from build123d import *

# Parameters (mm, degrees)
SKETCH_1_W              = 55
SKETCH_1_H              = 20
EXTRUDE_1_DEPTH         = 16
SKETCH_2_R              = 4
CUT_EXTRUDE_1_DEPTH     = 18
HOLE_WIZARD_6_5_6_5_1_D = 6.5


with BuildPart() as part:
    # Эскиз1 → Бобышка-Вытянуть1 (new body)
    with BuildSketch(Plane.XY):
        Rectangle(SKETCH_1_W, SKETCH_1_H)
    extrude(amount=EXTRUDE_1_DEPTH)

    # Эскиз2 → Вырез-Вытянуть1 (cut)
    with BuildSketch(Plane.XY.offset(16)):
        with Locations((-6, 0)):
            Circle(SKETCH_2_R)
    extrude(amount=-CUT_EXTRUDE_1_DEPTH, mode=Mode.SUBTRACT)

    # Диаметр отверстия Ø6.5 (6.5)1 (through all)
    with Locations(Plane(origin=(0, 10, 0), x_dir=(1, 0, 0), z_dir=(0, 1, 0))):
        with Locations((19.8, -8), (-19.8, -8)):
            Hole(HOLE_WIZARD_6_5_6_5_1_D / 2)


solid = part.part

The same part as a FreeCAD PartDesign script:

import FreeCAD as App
import Part
import Sketcher

doc = App.newDocument("Part")
params = doc.addObject("Spreadsheet::Sheet", "Params")
for row, (alias, value) in enumerate([
    ("sketch1_width", "55 mm"),
    ("sketch1_height", "20 mm"),
    ("pad1_length", "16 mm"),
    ("sketch2_diameter", "8 mm"),
    ("pocket1_length", "18 mm"),
    ("sketch3_diameter", "6.5 mm"),
    ("hole_diameter", "6.5 mm"),
], start=1):
    params.set(f"A{row}", alias)
    params.set(f"B{row}", "=" + value)
    params.setAlias(f"B{row}", alias)

body = doc.addObject("PartDesign::Body", "Body")

sketch1 = body.newObject("Sketcher::SketchObject", "Sketch")
sketch1.AttachmentSupport = (doc.getObject("XY_Plane"), [""])
sketch1.MapMode = "FlatFace"
sketch1.addGeometry([
    Part.LineSegment(App.Vector(-27.5, 10, 0), App.Vector(-27.5, -10, 0)),
    Part.LineSegment(App.Vector(-27.5, -10, 0), App.Vector(27.5, -10, 0)),
    Part.LineSegment(App.Vector(27.5, -10, 0), App.Vector(27.5, 10, 0)),
    Part.LineSegment(App.Vector(27.5, 10, 0), App.Vector(-27.5, 10, 0)),
], False)
sketch1.addConstraint([
    Sketcher.Constraint("Coincident", 0, 2, 1, 1),
    Sketcher.Constraint("Coincident", 1, 2, 2, 1),
    Sketcher.Constraint("Coincident", 2, 2, 3, 1),
    Sketcher.Constraint("Coincident", 3, 2, 0, 1),
    Sketcher.Constraint("Vertical", 0),
    Sketcher.Constraint("Horizontal", 1),
    Sketcher.Constraint("Vertical", 2),
    Sketcher.Constraint("Horizontal", 3),
    Sketcher.Constraint("Symmetric", 0, 2, 2, 2, -1, 1),
    Sketcher.Constraint("DistanceX", 1, 1, 1, 2, 55.0),
    Sketcher.Constraint("DistanceY", 0, 2, 0, 1, 20.0),
])
sketch1.setExpression("Constraints[9]", "Params.sketch1_width")
sketch1.setExpression("Constraints[10]", "Params.sketch1_height")
pad1 = body.newObject("PartDesign::Pad", "Pad")
pad1.Profile = sketch1
pad1.setExpression("Length", "Params.pad1_length")

sketch2 = body.newObject("Sketcher::SketchObject", "Sketch001")
sketch2.AttachmentSupport = (doc.getObject("XY_Plane"), [""])
sketch2.MapMode = "FlatFace"
sketch2.AttachmentOffset = App.Placement(App.Vector(0, 0, 16), App.Rotation())
sketch2.addGeometry(Part.Circle(App.Vector(-6, 0, 0), App.Vector(0, 0, 1), 4), False)
sketch2.addConstraint([
    Sketcher.Constraint("PointOnObject", 0, 3, -1),
    Sketcher.Constraint("Diameter", 0, 8.0),
    Sketcher.Constraint("DistanceX", 0, 3, -1, 1, 6.0),
])
sketch2.setExpression("Constraints[1]", "Params.sketch2_diameter")
pocket1 = body.newObject("PartDesign::Pocket", "Pocket")
pocket1.Profile = sketch2
pocket1.setExpression("Length", "Params.pocket1_length")

sketch3 = body.newObject("Sketcher::SketchObject", "Sketch002")
sketch3.AttachmentSupport = (doc.getObject("XZ_Plane"), [""])
sketch3.MapMode = "FlatFace"
sketch3.AttachmentOffset = App.Placement(App.Vector(0, 0, -10), App.Rotation())
sketch3.addGeometry([
    Part.Circle(App.Vector(19.8, 8, 0), App.Vector(0, 0, 1), 3.25),
    Part.Circle(App.Vector(-19.8, 8, 0), App.Vector(0, 0, 1), 3.25),
], False)
sketch3.addConstraint([
    Sketcher.Constraint("Equal", 0, 1),
    Sketcher.Constraint("Symmetric", 0, 3, 1, 3, -2),
    Sketcher.Constraint("Diameter", 0, 6.5),
    Sketcher.Constraint("DistanceY", -1, 1, 0, 3, 8.0),
    Sketcher.Constraint("DistanceX", -1, 1, 0, 3, 19.8),
])
sketch3.setExpression("Constraints[2]", "Params.sketch3_diameter")
doc.recompute()
hole = body.newObject("PartDesign::Hole", "Hole")
hole.Profile = sketch3
hole.ThreadType = "None"
hole.setExpression("Diameter", "Params.hole_diameter")
hole.DepthType = "ThroughAll"
hole.Reversed = True

doc.recompute()
